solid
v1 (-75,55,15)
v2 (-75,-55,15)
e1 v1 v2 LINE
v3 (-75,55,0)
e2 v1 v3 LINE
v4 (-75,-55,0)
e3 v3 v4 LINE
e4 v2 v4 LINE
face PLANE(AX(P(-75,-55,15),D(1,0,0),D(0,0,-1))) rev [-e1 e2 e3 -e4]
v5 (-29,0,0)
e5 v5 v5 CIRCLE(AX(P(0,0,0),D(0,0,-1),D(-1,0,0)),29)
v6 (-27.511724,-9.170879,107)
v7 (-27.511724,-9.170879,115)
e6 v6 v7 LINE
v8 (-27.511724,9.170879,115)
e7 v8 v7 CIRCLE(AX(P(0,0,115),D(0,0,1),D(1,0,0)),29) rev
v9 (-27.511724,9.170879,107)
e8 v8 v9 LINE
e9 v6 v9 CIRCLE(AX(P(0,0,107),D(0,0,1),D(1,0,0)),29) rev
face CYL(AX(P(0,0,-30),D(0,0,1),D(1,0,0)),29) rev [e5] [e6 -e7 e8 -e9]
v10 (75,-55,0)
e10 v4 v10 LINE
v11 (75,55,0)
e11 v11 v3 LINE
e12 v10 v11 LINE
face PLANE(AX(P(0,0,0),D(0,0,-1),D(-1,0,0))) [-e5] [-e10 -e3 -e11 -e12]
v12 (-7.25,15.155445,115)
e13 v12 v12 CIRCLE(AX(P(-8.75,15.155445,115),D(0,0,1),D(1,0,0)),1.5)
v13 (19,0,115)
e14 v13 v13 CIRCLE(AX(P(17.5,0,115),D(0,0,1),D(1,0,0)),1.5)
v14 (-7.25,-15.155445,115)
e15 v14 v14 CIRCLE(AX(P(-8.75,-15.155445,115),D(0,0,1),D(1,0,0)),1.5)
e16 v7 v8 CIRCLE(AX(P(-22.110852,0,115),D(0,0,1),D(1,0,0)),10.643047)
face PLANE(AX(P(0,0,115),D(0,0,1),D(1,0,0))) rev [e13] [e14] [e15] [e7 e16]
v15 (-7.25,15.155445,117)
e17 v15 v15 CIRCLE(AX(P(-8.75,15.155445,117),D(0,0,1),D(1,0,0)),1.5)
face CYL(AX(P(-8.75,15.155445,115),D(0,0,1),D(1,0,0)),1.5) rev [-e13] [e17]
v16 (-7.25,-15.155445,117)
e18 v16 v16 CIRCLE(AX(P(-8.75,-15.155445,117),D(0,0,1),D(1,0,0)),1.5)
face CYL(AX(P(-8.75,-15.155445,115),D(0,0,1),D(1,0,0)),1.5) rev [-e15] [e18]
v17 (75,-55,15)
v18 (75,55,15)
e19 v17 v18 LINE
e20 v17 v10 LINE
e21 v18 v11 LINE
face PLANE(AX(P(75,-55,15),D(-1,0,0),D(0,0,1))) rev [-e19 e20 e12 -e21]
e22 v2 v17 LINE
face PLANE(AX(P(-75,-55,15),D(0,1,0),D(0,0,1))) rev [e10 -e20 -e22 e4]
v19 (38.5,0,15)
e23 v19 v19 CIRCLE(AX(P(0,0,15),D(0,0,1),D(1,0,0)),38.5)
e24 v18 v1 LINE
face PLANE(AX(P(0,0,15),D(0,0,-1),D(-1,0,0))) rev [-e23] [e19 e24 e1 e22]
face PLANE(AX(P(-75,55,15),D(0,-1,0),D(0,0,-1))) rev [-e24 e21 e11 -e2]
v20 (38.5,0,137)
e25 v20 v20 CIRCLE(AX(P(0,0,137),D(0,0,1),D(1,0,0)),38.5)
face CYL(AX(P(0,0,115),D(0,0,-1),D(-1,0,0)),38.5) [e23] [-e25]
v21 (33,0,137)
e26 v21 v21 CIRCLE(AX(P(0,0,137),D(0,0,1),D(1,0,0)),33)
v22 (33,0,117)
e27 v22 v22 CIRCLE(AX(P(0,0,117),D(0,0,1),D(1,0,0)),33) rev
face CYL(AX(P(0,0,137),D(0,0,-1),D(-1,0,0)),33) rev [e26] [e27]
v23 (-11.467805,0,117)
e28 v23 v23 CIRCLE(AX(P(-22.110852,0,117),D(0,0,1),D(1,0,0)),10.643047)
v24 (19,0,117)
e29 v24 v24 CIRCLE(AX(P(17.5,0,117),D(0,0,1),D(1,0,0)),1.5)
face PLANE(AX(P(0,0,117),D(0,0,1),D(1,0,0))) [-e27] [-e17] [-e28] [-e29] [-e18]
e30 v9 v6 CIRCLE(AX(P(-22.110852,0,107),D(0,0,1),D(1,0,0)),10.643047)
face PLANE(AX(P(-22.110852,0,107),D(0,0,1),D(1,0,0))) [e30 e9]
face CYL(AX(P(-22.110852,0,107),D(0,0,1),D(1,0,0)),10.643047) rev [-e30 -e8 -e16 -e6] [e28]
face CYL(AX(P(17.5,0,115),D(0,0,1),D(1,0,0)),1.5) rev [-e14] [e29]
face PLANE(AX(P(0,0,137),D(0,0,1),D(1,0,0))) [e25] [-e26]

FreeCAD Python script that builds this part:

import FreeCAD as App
import Part
import Sketcher
from FreeCAD import Vector
Q = App.Units.Quantity


def add_polygon(sketch, points):
    """Adds a closed chain of lines whose ends are joined by coincident constraints."""
    first, n = sketch.GeometryCount, len(points)
    for a, b in zip(points, points[1:] + points[:1]):
        sketch.addGeometry(Part.LineSegment(App.Vector(*a, 0), App.Vector(*b, 0)), False)
    for i in range(n):
        sketch.addConstraint(Sketcher.Constraint("Coincident", first + i, 2, first + (i + 1) % n, 1))

doc = App.newDocument("Part")
body = doc.addObject("PartDesign::Body", "Body")

# Sketch on XY plane
sketch1 = doc.addObject("Sketcher::SketchObject", "Sketch")
body.addObject(sketch1)
sketch1.AttachmentSupport = (doc.XY_Plane, [""])
sketch1.MapMode = "FlatFace"
add_polygon(sketch1, [(-75, 55), (-75, -55), (75, -55), (75, 55)])  # lines 0-3
sketch1.addConstraint([
    Sketcher.Constraint("Vertical", 0),
    Sketcher.Constraint("Horizontal", 1),
    Sketcher.Constraint("Vertical", 2),
    Sketcher.Constraint("Horizontal", 3),
    Sketcher.Constraint("Symmetric", 0, 2, 2, 2, -1, 1),
    Sketcher.Constraint("DistanceX", 1, 1, 1, 2, Q("150 mm")),
    Sketcher.Constraint("DistanceY", 0, 2, 0, 1, Q("110 mm")),
])
pad1 = doc.addObject("PartDesign::Pad", "Pad")
body.addObject(pad1)
pad1.Profile = sketch1
pad1.Length = 15

# Sketch on XY plane
sketch2 = doc.addObject("Sketcher::SketchObject", "Sketch001")
body.addObject(sketch2)
sketch2.AttachmentSupport = (doc.XY_Plane, [""])
sketch2.MapMode = "FlatFace"
sketch2.AttachmentOffset = App.Placement(Vector(0, 0, 15), App.Rotation())
sketch2.addGeometry(Part.Circle(Vector(0, 0, 0), Vector(0, 0, 1), 38.5), False)
sketch2.addConstraint([
    Sketcher.Constraint("Coincident", 0, 3, -1, 1),
    Sketcher.Constraint("Diameter", 0, Q("77 mm")),
])
pad2 = doc.addObject("PartDesign::Pad", "Pad001")
body.addObject(pad2)
pad2.Profile = sketch2
pad2.Length = 100

# Sketch on XY plane
sketch3 = doc.addObject("Sketcher::SketchObject", "Sketch002")
body.addObject(sketch3)
sketch3.AttachmentSupport = (doc.XY_Plane, [""])
sketch3.MapMode = "FlatFace"
sketch3.AttachmentOffset = App.Placement(Vector(0, 0, 115), App.Rotation())
sketch3.addGeometry(Part.Circle(Vector(0, 0, 0), Vector(0, 0, 1), 29), False)
sketch3.addConstraint([
    Sketcher.Constraint("Coincident", 0, 3, -1, 1),
    Sketcher.Constraint("Diameter", 0, Q("58 mm")),
])
pocket1 = doc.addObject("PartDesign::Pocket", "Pocket")
body.addObject(pocket1)
pocket1.Profile = sketch3
pocket1.Length = 145

# Sketch on XY plane
sketch4 = doc.addObject("Sketcher::SketchObject", "Sketch003")
body.addObject(sketch4)
sketch4.AttachmentSupport = (doc.XY_Plane, [""])
sketch4.MapMode = "FlatFace"
sketch4.AttachmentOffset = App.Placement(Vector(0, 0, 115), App.Rotation())
sketch4.addGeometry(Part.Circle(Vector(0, 0, 0), Vector(0, 0, 1), 33), False)
sketch4.addConstraint([
    Sketcher.Constraint("Coincident", 0, 3, -1, 1),
    Sketcher.Constraint("Diameter", 0, Q("66 mm")),
])
pad3 = doc.addObject("PartDesign::Pad", "Pad002")
body.addObject(pad3)
pad3.Profile = sketch4
pad3.Length = 2

# Sketch on XY plane
sketch5 = doc.addObject("Sketcher::SketchObject", "Sketch004")
body.addObject(sketch5)
sketch5.AttachmentSupport = (doc.XY_Plane, [""])
sketch5.MapMode = "FlatFace"
sketch5.AttachmentOffset = App.Placement(Vector(0, 0, 117), App.Rotation())
sketch5.addGeometry([
    Part.Circle(Vector(17.5, 0, 0), Vector(0, 0, 1), 1.5),
    Part.Circle(Vector(-8.75, -15.155445, 0), Vector(0, 0, 1), 1.5),
    Part.Circle(Vector(-8.75, 15.155445, 0), Vector(0, 0, 1), 1.5),
], False)
sketch5.addConstraint([
    Sketcher.Constraint("Equal", 0, 1),
    Sketcher.Constraint("Equal", 1, 2),
    Sketcher.Constraint("Symmetric", 1, 3, 2, 3, -1),
    Sketcher.Constraint("PointOnObject", 0, 3, -1),
    Sketcher.Constraint("Diameter", 0, Q("3 mm")),
    Sketcher.Constraint("DistanceX", -1, 1, 0, 3, Q("17.5 mm")),
    Sketcher.Constraint("DistanceX", 1, 3, -1, 1, Q("8.75 mm")),
    Sketcher.Constraint("DistanceY", 1, 3, 2, 3, Q("30.310889 mm")),
])
pocket2 = doc.addObject("PartDesign::Pocket", "Pocket001")
body.addObject(pocket2)
pocket2.Profile = sketch5
pocket2.Length = 2

# Sketch on XY plane
sketch6 = doc.addObject("Sketcher::SketchObject", "Sketch005")
body.addObject(sketch6)
sketch6.AttachmentSupport = (doc.XY_Plane, [""])
sketch6.MapMode = "FlatFace"
sketch6.AttachmentOffset = App.Placement(Vector(0, 0, 115), App.Rotation())
sketch6.addGeometry([
    Part.Circle(Vector(0, 0, 0), Vector(0, 0, 1), 38.5),
    Part.Circle(Vector(0, 0, 0), Vector(0, 0, 1), 33),
], False)
sketch6.addConstraint([
    Sketcher.Constraint("Coincident", 0, 3, -1, 1),
    Sketcher.Constraint("Coincident", 1, 3, -1, 1),
    Sketcher.Constraint("Diameter", 0, Q("77 mm")),
    Sketcher.Constraint("Diameter", 1, Q("66 mm")),
])
pad4 = doc.addObject("PartDesign::Pad", "Pad003")
body.addObject(pad4)
pad4.Profile = sketch6
pad4.Length = 22

# Sketch on XY plane
sketch7 = doc.addObject("Sketcher::SketchObject", "Sketch006")
body.addObject(sketch7)
sketch7.AttachmentSupport = (doc.XY_Plane, [""])
sketch7.MapMode = "FlatFace"
sketch7.AttachmentOffset = App.Placement(Vector(0, 0, 117), App.Rotation())
sketch7.addGeometry(Part.Circle(Vector(-22.110852, 0, 0), Vector(0, 0, 1), 10.643047), False)
sketch7.addConstraint([
    Sketcher.Constraint("PointOnObject", 0, 3, -1),
    Sketcher.Constraint("Diameter", 0, Q("21.286094 mm")),
    Sketcher.Constraint("DistanceX", 0, 3, -1, 1, Q("22.110852 mm")),
])
pocket3 = doc.addObject("PartDesign::Pocket", "Pocket002")
body.addObject(pocket3)
pocket3.Profile = sketch7
pocket3.Length = 10

doc.recompute()
